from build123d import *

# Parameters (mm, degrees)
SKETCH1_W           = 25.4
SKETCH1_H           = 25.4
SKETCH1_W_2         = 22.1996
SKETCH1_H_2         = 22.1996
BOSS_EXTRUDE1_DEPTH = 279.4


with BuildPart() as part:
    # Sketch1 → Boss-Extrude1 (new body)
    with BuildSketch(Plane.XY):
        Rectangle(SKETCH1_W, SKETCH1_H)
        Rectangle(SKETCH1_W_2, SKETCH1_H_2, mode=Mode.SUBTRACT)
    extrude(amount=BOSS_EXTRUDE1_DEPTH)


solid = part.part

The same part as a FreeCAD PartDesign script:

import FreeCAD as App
import Part
import Sketcher
from FreeCAD import Vector
Q = App.Units.Quantity


def add_polygon(sketch, points):
    """Adds a closed chain of lines whose ends are joined by coincident constraints."""
    first, n = sketch.GeometryCount, len(points)
    for a, b in zip(points, points[1:] + points[:1]):
        sketch.addGeometry(Part.LineSegment(App.Vector(*a, 0), App.Vector(*b, 0)), False)
    for i in range(n):
        sketch.addConstraint(Sketcher.Constraint("Coincident", first + i, 2, first + (i + 1) % n, 1))

doc = App.newDocument("Part")
params = doc.addObject("Spreadsheet::Sheet", "Params")
for row, (alias, value) in enumerate([
    ("sketch1_width", "1 in"),
    ("sketch1_width2", "0.874 in"),
    ("pad1_length", "11 in"),
], start=1):
    params.set(f"A{row}", alias)
    params.set(f"B{row}", "=" + value)
    params.setAlias(f"B{row}", alias)

body = doc.addObject("PartDesign::Body", "Body")

# Sketch on XY plane
sketch1 = body.newObject("Sketcher::SketchObject", "Sketch")
sketch1.AttachmentSupport = (doc.getObject("XY_Plane"), [""])
sketch1.MapMode = "FlatFace"
add_polygon(sketch1, [(-13, 13), (-13, -13), (13, -13), (13, 13)])  # lines 0-3
add_polygon(sketch1, [(11, -11), (-11, -11), (-11, 11), (11, 11)])  # lines 4-7
sketch1.addConstraint([
    Sketcher.Constraint("Vertical", 0),
    Sketcher.Constraint("Horizontal", 1),
    Sketcher.Constraint("Vertical", 2),
    Sketcher.Constraint("Horizontal", 3),
    Sketcher.Constraint("Horizontal", 4),
    Sketcher.Constraint("Vertical", 5),
    Sketcher.Constraint("Horizontal", 6),
    Sketcher.Constraint("Vertical", 7),
    Sketcher.Constraint("Symmetric", 0, 2, 2, 2, -1, 1),
    Sketcher.Constraint("Symmetric", 4, 2, 6, 2, -1, 1),
    Sketcher.Constraint("Equal", 3, 0),
    Sketcher.Constraint("Equal", 6, 5),
    Sketcher.Constraint("DistanceX", 1, 1, 1, 2, Q("1 in")),
    Sketcher.Constraint("DistanceX", 4, 2, 4, 1, Q("0.874 in")),
])
sketch1.setExpression("Constraints[20]", "Params.sketch1_width")
sketch1.setExpression("Constraints[21]", "Params.sketch1_width2")
pad1 = body.newObject("PartDesign::Pad", "Pad")
pad1.Profile = sketch1
pad1.setExpression("Length", "Params.pad1_length")

doc.recompute()
